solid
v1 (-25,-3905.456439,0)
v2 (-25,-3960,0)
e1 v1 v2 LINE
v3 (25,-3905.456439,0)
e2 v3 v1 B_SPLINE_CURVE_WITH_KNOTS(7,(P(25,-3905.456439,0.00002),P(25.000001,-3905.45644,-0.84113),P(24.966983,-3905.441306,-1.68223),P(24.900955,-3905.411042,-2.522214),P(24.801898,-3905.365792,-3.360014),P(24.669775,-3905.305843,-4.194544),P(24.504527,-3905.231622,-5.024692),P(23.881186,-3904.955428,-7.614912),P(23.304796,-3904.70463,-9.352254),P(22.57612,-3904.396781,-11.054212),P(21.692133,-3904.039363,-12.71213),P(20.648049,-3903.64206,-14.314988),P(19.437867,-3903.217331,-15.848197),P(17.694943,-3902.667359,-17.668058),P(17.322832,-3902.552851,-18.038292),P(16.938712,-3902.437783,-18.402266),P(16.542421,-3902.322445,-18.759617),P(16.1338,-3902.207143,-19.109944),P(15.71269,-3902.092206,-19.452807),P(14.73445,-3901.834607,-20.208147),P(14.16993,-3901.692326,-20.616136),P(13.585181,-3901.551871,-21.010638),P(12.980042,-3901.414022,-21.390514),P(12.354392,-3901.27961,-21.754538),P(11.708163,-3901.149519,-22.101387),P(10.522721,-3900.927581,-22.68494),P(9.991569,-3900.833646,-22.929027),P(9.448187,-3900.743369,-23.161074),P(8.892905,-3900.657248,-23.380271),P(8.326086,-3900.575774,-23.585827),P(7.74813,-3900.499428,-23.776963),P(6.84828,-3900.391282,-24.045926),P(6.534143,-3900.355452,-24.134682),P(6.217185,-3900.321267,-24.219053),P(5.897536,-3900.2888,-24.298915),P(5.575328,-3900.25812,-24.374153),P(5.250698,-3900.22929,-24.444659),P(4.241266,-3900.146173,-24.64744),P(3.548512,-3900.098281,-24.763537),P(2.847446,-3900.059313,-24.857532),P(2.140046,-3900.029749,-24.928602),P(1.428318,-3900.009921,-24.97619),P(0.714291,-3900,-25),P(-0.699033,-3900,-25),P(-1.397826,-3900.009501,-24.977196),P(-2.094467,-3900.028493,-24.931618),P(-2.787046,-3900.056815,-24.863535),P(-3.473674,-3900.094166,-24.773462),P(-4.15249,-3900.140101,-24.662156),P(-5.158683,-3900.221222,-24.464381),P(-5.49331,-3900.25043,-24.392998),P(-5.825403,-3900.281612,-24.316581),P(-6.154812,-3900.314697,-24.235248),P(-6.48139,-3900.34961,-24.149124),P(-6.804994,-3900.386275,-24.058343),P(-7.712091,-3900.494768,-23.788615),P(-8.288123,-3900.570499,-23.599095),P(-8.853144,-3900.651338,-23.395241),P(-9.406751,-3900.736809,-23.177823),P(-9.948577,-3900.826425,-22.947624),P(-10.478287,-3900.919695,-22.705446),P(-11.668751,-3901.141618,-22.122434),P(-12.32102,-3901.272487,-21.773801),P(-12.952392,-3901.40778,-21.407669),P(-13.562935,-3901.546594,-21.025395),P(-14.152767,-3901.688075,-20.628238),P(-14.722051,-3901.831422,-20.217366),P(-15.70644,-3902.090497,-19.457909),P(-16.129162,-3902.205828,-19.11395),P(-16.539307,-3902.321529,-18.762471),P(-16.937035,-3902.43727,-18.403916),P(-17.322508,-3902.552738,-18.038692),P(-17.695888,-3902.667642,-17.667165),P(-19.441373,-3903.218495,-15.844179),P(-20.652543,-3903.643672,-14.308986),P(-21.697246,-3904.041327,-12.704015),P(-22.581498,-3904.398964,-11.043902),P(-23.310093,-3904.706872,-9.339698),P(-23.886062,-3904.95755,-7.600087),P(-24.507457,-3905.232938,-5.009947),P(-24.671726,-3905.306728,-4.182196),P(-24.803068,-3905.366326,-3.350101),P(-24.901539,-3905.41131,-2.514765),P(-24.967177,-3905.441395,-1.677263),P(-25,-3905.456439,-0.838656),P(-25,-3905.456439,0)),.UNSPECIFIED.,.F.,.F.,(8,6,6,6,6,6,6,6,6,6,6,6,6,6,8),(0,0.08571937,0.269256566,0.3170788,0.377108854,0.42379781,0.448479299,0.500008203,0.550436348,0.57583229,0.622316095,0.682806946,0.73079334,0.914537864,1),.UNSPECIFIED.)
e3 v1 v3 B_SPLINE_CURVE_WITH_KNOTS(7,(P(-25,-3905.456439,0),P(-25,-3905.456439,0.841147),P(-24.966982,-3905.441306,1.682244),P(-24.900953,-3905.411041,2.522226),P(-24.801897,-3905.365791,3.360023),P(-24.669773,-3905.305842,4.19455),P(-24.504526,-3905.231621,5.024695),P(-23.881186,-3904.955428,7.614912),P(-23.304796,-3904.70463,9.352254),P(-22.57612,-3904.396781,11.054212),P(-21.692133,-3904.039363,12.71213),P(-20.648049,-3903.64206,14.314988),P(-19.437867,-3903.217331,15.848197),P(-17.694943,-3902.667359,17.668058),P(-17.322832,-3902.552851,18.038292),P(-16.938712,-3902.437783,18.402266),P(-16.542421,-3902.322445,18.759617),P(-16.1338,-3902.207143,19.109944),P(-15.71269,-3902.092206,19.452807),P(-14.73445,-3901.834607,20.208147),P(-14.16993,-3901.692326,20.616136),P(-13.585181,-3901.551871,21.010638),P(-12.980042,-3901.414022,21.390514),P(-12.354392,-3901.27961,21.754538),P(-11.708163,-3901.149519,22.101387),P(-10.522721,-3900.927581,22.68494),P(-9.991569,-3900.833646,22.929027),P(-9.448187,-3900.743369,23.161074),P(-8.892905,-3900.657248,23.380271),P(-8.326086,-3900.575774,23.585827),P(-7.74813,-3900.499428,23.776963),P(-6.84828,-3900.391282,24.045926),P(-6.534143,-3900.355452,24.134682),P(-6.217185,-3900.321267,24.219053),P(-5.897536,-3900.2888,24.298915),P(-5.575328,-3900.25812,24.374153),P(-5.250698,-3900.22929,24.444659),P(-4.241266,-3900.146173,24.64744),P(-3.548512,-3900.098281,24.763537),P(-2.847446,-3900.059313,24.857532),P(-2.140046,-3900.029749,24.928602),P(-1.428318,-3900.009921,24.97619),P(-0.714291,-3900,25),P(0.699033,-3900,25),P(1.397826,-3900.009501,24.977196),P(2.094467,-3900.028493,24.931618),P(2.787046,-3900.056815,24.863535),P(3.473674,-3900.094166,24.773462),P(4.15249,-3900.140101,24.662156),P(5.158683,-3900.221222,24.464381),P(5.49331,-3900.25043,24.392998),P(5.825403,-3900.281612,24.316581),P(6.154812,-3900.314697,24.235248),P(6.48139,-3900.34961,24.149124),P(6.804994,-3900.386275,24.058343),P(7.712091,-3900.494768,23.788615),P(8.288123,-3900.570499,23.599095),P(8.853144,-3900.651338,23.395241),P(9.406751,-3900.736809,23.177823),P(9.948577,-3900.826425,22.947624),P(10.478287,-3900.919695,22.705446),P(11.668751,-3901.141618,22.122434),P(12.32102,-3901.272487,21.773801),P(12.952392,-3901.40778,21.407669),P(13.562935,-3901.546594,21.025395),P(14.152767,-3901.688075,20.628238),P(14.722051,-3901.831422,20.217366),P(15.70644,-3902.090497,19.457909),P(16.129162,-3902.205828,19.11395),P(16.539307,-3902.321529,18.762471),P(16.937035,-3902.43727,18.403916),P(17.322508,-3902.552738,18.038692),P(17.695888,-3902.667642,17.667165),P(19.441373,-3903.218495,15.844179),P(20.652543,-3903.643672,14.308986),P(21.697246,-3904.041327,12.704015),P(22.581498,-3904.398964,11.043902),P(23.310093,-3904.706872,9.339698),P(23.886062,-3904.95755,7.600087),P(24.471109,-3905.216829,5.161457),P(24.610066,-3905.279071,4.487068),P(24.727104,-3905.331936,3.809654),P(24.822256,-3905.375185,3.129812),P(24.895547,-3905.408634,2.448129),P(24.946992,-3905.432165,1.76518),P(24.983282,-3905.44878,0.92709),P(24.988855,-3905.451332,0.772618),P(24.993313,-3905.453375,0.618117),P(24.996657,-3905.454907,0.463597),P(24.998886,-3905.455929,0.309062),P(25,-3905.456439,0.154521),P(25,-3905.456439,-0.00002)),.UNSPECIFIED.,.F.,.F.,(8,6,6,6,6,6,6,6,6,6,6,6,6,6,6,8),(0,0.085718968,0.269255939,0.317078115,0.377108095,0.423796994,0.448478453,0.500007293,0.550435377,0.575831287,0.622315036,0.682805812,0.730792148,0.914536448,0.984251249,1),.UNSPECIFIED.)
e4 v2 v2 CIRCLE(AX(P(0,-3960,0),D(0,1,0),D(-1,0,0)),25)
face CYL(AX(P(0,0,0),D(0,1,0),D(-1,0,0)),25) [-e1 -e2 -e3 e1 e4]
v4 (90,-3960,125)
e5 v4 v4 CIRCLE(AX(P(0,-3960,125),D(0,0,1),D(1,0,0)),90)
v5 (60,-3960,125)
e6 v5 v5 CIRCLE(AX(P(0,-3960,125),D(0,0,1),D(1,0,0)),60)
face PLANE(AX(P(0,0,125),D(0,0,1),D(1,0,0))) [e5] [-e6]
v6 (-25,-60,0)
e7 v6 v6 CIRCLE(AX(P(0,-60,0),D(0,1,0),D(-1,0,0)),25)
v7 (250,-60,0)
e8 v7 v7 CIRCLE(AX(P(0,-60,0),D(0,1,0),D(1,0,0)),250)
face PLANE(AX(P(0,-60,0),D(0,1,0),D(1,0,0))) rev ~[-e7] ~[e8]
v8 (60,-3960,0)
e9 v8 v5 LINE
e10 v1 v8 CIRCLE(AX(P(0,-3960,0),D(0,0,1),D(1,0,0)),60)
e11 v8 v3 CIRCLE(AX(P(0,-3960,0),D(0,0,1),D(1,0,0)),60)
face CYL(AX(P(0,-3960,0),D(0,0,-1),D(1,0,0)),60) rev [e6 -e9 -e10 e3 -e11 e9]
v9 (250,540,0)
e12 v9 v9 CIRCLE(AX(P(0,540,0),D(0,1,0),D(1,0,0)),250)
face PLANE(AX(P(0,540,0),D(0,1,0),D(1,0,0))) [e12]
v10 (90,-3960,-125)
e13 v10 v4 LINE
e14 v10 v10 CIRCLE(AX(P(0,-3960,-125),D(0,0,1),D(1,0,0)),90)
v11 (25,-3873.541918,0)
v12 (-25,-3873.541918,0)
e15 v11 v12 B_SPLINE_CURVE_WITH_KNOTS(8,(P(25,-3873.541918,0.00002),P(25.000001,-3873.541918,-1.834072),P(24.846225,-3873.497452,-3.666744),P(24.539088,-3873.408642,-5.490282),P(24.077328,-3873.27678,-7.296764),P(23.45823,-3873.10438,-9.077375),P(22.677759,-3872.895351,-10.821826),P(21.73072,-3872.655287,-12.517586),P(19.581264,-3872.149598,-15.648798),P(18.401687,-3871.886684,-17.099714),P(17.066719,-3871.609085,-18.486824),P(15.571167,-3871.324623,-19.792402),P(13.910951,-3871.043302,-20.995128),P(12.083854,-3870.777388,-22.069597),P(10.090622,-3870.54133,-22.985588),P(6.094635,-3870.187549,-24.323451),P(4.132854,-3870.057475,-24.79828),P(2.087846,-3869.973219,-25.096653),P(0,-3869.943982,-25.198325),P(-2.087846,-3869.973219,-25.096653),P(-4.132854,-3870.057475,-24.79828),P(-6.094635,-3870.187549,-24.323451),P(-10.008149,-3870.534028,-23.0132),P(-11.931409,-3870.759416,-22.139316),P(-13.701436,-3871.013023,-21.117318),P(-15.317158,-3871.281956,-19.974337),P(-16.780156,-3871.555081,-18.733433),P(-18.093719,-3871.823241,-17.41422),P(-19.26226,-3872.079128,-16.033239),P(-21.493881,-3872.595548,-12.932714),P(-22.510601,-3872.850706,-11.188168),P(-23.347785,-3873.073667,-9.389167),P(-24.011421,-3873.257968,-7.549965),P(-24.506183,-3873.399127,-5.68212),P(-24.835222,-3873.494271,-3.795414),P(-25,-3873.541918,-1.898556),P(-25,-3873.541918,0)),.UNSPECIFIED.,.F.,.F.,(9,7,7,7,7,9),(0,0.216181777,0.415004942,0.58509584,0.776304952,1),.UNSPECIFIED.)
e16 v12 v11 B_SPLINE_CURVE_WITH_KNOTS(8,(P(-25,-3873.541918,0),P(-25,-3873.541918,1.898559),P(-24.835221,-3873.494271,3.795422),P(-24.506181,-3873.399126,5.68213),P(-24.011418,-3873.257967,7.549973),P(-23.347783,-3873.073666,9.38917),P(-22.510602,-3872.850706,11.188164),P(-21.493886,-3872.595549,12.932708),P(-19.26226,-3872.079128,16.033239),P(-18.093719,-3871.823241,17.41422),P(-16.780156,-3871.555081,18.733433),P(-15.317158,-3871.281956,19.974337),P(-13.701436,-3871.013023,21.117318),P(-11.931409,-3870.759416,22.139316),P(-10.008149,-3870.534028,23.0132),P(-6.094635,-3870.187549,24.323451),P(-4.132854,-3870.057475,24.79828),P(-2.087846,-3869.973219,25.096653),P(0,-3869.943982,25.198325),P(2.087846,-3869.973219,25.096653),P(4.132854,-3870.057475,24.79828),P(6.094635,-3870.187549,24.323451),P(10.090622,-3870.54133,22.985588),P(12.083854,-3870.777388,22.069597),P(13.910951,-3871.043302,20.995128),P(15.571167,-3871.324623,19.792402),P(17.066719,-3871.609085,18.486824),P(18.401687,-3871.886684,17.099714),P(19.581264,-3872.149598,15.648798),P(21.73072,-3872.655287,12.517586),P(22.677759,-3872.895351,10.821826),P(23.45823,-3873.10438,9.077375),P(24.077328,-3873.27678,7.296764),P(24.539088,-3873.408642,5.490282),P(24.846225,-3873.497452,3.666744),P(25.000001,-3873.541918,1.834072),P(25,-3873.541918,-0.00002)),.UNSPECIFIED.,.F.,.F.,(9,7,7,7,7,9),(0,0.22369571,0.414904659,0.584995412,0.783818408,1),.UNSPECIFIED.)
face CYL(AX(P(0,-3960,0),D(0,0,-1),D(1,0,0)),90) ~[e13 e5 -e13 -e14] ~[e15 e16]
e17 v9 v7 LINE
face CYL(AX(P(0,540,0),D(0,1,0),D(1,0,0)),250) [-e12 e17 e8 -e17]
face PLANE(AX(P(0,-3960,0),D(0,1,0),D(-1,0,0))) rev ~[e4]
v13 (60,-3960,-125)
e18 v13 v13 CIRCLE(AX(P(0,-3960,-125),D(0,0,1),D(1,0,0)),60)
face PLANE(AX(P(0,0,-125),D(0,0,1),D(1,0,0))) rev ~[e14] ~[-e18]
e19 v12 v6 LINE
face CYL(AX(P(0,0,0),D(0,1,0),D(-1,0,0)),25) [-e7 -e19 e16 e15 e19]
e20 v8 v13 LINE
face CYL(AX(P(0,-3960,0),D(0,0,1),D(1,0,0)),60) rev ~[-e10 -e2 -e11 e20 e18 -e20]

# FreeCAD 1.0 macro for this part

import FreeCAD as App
import Part
import Sketcher

V = App.Vector
Q = App.Units.Quantity

doc = App.newDocument("Part")
params = doc.addObject("Spreadsheet::Sheet", "Params")
for row, (alias, value) in enumerate([
    ("sketch1_diameter", "180 mm"),
    ("sketch1_diameter2", "120 mm"),
    ("pad1_length", "250 mm"),
    ("sketch2_diameter", "50 mm"),
    ("pad2_length", "540 mm"),
    ("pad2_length2", "3960 mm"),
    ("sketch3_diameter", "120 mm"),
    ("hole_diameter", "120 mm"),
    ("sketch4_diameter", "500 mm"),
    ("pad3_length", "600 mm"),
], start=1):
    params.set(f"A{row}", alias)
    params.set(f"B{row}", "=" + value)
    params.setAlias(f"B{row}", alias)

body = doc.addObject("PartDesign::Body", "Body")
body.AllowCompound = True

# Sketch on XY plane
sketch1 = body.newObject("Sketcher::SketchObject", "Sketch")
sketch1.AttachmentSupport = (doc.getObject("XY_Plane"), [""])
sketch1.MapMode = "FlatFace"
sketch1.addGeometry([
    Part.Circle(V(0, -3960, 0), V(0, 0, 1), 90),
    Part.Circle(V(0, -3960, 0), V(0, 0, 1), 60),
], False)
sketch1.addConstraint([
    Sketcher.Constraint("Coincident", 1, 3, 0, 3),
    Sketcher.Constraint("PointOnObject", 0, 3, -2),
    Sketcher.Constraint("Diameter", 0, Q("180 mm")),
    Sketcher.Constraint("Diameter", 1, Q("120 mm")),
    Sketcher.Constraint("DistanceY", 0, 3, -1, 1, Q("3960 mm")),
])
sketch1.setExpression("Constraints[2]", "Params.sketch1_diameter")
sketch1.setExpression("Constraints[3]", "Params.sketch1_diameter2")
pad1 = body.newObject("PartDesign::Pad", "Pad")
pad1.Profile = sketch1
pad1.setExpression("Length", "Params.pad1_length")
pad1.Midplane = True

# Sketch on XZ plane
sketch2 = body.newObject("Sketcher::SketchObject", "Sketch001")
sketch2.AttachmentSupport = (doc.getObject("XZ_Plane"), [""])
sketch2.MapMode = "FlatFace"
sketch2.addGeometry(Part.Circle(V(0, 0, 0), V(0, 0, 1), 25), False)
sketch2.addConstraint([
    Sketcher.Constraint("Coincident", 0, 3, -1, 1),
    Sketcher.Constraint("Diameter", 0, Q("50 mm")),
])
sketch2.setExpression("Constraints[1]", "Params.sketch2_diameter")
pad2 = body.newObject("PartDesign::Pad", "Pad001")
pad2.Profile = sketch2
pad2.Type = "TwoLengths"
pad2.setExpression("Length", "Params.pad2_length")
pad2.setExpression("Length2", "Params.pad2_length2")
pad2.Reversed = True

# Sketch on XY plane
sketch3 = body.newObject("Sketcher::SketchObject", "Sketch002")
sketch3.AttachmentSupport = (doc.getObject("XY_Plane"), [""])
sketch3.MapMode = "FlatFace"
sketch3.AttachmentOffset = App.Placement(V(0, 0, 125), App.Rotation())
sketch3.addGeometry(Part.Circle(V(0, 0, 0), V(0, 0, 1), 60), False)
sketch3.addConstraint([
    Sketcher.Constraint("Coincident", 0, 3, -1, 1),
    Sketcher.Constraint("Diameter", 0, Q("120 mm")),
])
sketch3.setExpression("Constraints[1]", "Params.sketch3_diameter")
doc.recompute()
hole = body.newObject("PartDesign::Hole", "Hole")
hole.Profile = sketch3
hole.ThreadType = "None"
hole.setExpression("Diameter", "Params.hole_diameter")
hole.DepthType = "ThroughAll"

# Sketch on XZ plane
sketch4 = body.newObject("Sketcher::SketchObject", "Sketch003")
sketch4.AttachmentSupport = (doc.getObject("XZ_Plane"), [""])
sketch4.MapMode = "FlatFace"
sketch4.AttachmentOffset = App.Placement(V(0, 0, -540), App.Rotation())
sketch4.addGeometry(Part.Circle(V(0, 0, 0), V(0, 0, 1), 250), False)
sketch4.addConstraint([
    Sketcher.Constraint("Coincident", 0, 3, -1, 1),
    Sketcher.Constraint("Diameter", 0, Q("500 mm")),
])
sketch4.setExpression("Constraints[1]", "Params.sketch4_diameter")
pad3 = body.newObject("PartDesign::Pad", "Pad002")
pad3.Profile = sketch4
pad3.setExpression("Length", "Params.pad3_length")

doc.recompute()
